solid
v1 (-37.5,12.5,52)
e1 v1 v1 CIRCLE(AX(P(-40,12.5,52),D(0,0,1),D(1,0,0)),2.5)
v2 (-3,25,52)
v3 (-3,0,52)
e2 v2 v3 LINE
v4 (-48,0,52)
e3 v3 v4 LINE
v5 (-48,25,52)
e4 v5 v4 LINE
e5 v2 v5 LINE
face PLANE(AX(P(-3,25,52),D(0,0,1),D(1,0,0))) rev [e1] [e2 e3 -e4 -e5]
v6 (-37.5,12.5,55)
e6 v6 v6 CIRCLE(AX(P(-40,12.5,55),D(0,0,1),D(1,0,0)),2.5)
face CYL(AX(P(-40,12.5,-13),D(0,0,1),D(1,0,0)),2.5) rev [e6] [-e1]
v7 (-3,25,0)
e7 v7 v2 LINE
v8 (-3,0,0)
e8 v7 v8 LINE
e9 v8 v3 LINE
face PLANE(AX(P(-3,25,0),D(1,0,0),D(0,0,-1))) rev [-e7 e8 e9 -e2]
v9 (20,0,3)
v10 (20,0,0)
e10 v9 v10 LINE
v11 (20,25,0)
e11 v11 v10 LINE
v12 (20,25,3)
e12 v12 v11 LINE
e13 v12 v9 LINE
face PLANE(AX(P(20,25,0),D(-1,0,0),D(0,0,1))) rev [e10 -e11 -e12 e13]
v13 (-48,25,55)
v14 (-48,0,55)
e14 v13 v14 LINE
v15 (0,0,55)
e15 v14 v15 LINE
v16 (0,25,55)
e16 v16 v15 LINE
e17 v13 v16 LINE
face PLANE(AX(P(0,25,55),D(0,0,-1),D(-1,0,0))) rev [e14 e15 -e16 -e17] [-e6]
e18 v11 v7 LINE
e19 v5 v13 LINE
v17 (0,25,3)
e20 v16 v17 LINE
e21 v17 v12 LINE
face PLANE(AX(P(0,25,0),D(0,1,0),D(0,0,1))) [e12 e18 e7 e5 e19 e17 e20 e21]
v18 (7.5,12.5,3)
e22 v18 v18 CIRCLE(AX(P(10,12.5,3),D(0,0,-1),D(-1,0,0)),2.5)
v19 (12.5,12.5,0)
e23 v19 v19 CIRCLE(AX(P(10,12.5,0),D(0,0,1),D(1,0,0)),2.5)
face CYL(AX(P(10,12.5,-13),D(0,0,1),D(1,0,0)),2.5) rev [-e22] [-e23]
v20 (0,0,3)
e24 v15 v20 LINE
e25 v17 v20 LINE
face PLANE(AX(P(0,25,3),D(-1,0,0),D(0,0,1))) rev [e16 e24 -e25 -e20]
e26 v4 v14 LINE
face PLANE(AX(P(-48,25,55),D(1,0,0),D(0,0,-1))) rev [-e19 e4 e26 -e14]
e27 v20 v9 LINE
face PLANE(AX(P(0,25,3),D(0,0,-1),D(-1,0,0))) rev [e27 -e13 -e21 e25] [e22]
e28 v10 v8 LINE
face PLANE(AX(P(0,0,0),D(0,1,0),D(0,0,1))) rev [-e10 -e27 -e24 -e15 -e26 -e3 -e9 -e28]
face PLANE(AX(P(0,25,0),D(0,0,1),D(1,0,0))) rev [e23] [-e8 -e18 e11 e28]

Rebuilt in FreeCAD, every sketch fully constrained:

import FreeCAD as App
import Part
import Sketcher
Q = App.Units.Quantity


def add_polygon(sketch, points):
    """Adds a closed chain of lines whose ends are joined by coincident constraints."""
    first, n = sketch.GeometryCount, len(points)
    for a, b in zip(points, points[1:] + points[:1]):
        sketch.addGeometry(Part.LineSegment(App.Vector(*a, 0), App.Vector(*b, 0)), False)
    for i in range(n):
        sketch.addConstraint(Sketcher.Constraint("Coincident", first + i, 2, first + (i + 1) % n, 1))

doc = App.newDocument("Part")
params = doc.addObject("Spreadsheet::Sheet", "Params")
for row, (alias, value) in enumerate([
    ("sketch1_width", "23 mm"),
    ("sketch1_width2", "45 mm"),
    ("sketch1_width3", "48 mm"),
    ("sketch1_height", "52 mm"),
    ("sketch1_height2", "3 mm"),
    ("pad1_length", "25 mm"),
    ("sketch2_diameter", "5 mm"),
    ("pocket1_length", "68 mm"),
], start=1):
    params.set(f"A{row}", alias)
    params.set(f"B{row}", "=" + value)
    params.setAlias(f"B{row}", alias)

body = doc.addObject("PartDesign::Body", "Body")

sketch1 = body.newObject("Sketcher::SketchObject", "Sketch")
sketch1.AttachmentSupport = (doc.getObject("XZ_Plane"), [""])
sketch1.MapMode = "FlatFace"
add_polygon(sketch1, [(20, 0), (-3, 0), (-3, 52), (-48, 52), (-48, 55), (0, 55), (0, 3), (20, 3)])
sketch1.addConstraint(Sketcher.Constraint("Horizontal", 0))
sketch1.addConstraint(Sketcher.Constraint("Vertical", 1))
sketch1.addConstraint(Sketcher.Constraint("Horizontal", 2))
sketch1.addConstraint(Sketcher.Constraint("Vertical", 3))
sketch1.addConstraint(Sketcher.Constraint("Horizontal", 4))
sketch1.addConstraint(Sketcher.Constraint("Vertical", 5))
sketch1.addConstraint(Sketcher.Constraint("Horizontal", 6))
sketch1.addConstraint(Sketcher.Constraint("Vertical", 7))
sketch1.addConstraint(Sketcher.Constraint("PointOnObject", 0, 2, -1))
sketch1.addConstraint(Sketcher.Constraint("PointOnObject", 4, 2, -2))
sketch1.addConstraint(Sketcher.Constraint("Equal", 1, 5))
sketch1.addConstraint(Sketcher.Constraint("DistanceX", 0, 2, 0, 1, Q("23 mm")))
sketch1.addConstraint(Sketcher.Constraint("DistanceX", 2, 2, 2, 1, Q("45 mm")))
sketch1.addConstraint(Sketcher.Constraint("DistanceX", 4, 1, 4, 2, Q("48 mm")))
sketch1.addConstraint(Sketcher.Constraint("DistanceY", 1, 1, 1, 2, Q("52 mm")))
sketch1.addConstraint(Sketcher.Constraint("DistanceY", 3, 1, 3, 2, Q("3 mm")))
sketch1.setExpression("Constraints[19]", "Params.sketch1_width")
sketch1.setExpression("Constraints[20]", "Params.sketch1_width2")
sketch1.setExpression("Constraints[21]", "Params.sketch1_width3")
sketch1.setExpression("Constraints[22]", "Params.sketch1_height")
sketch1.setExpression("Constraints[23]", "Params.sketch1_height2")
pad1 = body.newObject("PartDesign::Pad", "Pad")
pad1.Profile = sketch1
pad1.setExpression("Length", "Params.pad1_length")
pad1.Reversed = True

sketch2 = body.newObject("Sketcher::SketchObject", "Sketch001")
sketch2.AttachmentSupport = (doc.getObject("XY_Plane"), [""])
sketch2.MapMode = "FlatFace"
sketch2.AttachmentOffset = App.Placement(App.Vector(0, 0, 55), App.Rotation())
sketch2.addGeometry(Part.Circle(App.Vector(-40, 12.5, 0), App.Vector(0, 0, 1), 2.5), False)
sketch2.addGeometry(Part.Circle(App.Vector(10, 12.5, 0), App.Vector(0, 0, 1), 2.5), False)
sketch2.addConstraint(Sketcher.Constraint("Equal", 0, 1))
sketch2.addConstraint(Sketcher.Constraint("Horizontal", 0, 3, 1, 3))
sketch2.addConstraint(Sketcher.Constraint("Diameter", 0, Q("5 mm")))
sketch2.addConstraint(Sketcher.Constraint("DistanceX", 0, 3, -1, 1, Q("40 mm")))
sketch2.addConstraint(Sketcher.Constraint("DistanceX", -1, 1, 1, 3, Q("10 mm")))
sketch2.addConstraint(Sketcher.Constraint("DistanceY", -1, 1, 0, 3, Q("12.5 mm")))
sketch2.setExpression("Constraints[2]", "Params.sketch2_diameter")
pocket1 = body.newObject("PartDesign::Pocket", "Pocket")
pocket1.Profile = sketch2
pocket1.setExpression("Length", "Params.pocket1_length")

doc.recompute()
